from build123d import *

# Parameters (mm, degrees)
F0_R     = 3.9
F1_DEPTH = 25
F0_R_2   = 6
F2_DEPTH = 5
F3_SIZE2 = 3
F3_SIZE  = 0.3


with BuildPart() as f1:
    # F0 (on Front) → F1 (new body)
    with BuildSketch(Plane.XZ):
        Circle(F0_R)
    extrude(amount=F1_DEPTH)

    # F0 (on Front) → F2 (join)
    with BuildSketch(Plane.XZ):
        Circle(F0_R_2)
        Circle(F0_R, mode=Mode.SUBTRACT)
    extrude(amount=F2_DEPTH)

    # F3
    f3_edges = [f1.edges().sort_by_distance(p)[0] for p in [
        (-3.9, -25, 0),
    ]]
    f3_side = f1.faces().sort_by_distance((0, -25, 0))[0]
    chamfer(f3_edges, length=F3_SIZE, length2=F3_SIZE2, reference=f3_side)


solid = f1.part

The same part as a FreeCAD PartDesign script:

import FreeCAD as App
import Part
import Sketcher
from FreeCAD import Vector
Q = App.Units.Quantity


def edges_at(feature, points):
    """Names of the edges that pass closest to the given points."""
    edges = feature.Shape.Edges
    near = lambda p: min(range(len(edges)), key=lambda i: edges[i].distToShape(Part.Vertex(*p))[0])
    return sorted({f"Edge{near(p) + 1}" for p in points})

doc = App.newDocument("Part")
params = doc.addObject("Spreadsheet::Sheet", "Params")
for row, (alias, value) in enumerate([
    ("sketch1_diameter", "7.8 mm"),
    ("pad1_length", "25 mm"),
    ("sketch2_diameter", "12 mm"),
    ("sketch2_diameter2", "7.8 mm"),
    ("pad2_length", "5 mm"),
    ("chamfer_size", "0.3 mm"),
    ("chamfer_size2", "3 mm"),
], start=1):
    params.set(f"A{row}", alias)
    params.set(f"B{row}", "=" + value)
    params.setAlias(f"B{row}", alias)

body = doc.addObject("PartDesign::Body", "Body")

sketch1 = doc.addObject("Sketcher::SketchObject", "Sketch")
body.addObject(sketch1)
sketch1.AttachmentSupport = (doc.XZ_Plane, [""])
sketch1.MapMode = "FlatFace"
sketch1.addGeometry(Part.Circle(Vector(0, 0, 0), Vector(0, 0, 1), 3.9), False)
sketch1.addConstraint(Sketcher.Constraint("Coincident", 0, 3, -1, 1))
sketch1.addConstraint(Sketcher.Constraint("Diameter", 0, Q("7.8 mm")))
sketch1.setExpression("Constraints[1]", "Params.sketch1_diameter")
pad1 = doc.addObject("PartDesign::Pad", "Pad")
body.addObject(pad1)
pad1.Profile = sketch1
pad1.setExpression("Length", "Params.pad1_length")

sketch2 = doc.addObject("Sketcher::SketchObject", "Sketch001")
body.addObject(sketch2)
sketch2.AttachmentSupport = (doc.XZ_Plane, [""])
sketch2.MapMode = "FlatFace"
sketch2.addGeometry(Part.Circle(Vector(0, 0, 0), Vector(0, 0, 1), 6), False)
sketch2.addGeometry(Part.Circle(Vector(0, 0, 0), Vector(0, 0, 1), 3.9), False)
sketch2.addConstraint(Sketcher.Constraint("Coincident", 0, 3, -1, 1))
sketch2.addConstraint(Sketcher.Constraint("Coincident", 1, 3, -1, 1))
sketch2.addConstraint(Sketcher.Constraint("Diameter", 0, Q("12 mm")))
sketch2.addConstraint(Sketcher.Constraint("Diameter", 1, Q("7.8 mm")))
sketch2.setExpression("Constraints[2]", "Params.sketch2_diameter")
sketch2.setExpression("Constraints[3]", "Params.sketch2_diameter2")
pad2 = doc.addObject("PartDesign::Pad", "Pad001")
body.addObject(pad2)
pad2.Profile = sketch2
pad2.setExpression("Length", "Params.pad2_length")
doc.recompute()

chamfer = doc.addObject("PartDesign::Chamfer", "Chamfer")
body.addObject(chamfer)
chamfer.Base = (pad2, edges_at(pad2, [(-3.9, -25, 0)]))
chamfer.ChamferType = "Two distances"
chamfer.setExpression("Size", "Params.chamfer_size")
chamfer.setExpression("Size2", "Params.chamfer_size2")
chamfer.FlipDirection = True

doc.recompute()
